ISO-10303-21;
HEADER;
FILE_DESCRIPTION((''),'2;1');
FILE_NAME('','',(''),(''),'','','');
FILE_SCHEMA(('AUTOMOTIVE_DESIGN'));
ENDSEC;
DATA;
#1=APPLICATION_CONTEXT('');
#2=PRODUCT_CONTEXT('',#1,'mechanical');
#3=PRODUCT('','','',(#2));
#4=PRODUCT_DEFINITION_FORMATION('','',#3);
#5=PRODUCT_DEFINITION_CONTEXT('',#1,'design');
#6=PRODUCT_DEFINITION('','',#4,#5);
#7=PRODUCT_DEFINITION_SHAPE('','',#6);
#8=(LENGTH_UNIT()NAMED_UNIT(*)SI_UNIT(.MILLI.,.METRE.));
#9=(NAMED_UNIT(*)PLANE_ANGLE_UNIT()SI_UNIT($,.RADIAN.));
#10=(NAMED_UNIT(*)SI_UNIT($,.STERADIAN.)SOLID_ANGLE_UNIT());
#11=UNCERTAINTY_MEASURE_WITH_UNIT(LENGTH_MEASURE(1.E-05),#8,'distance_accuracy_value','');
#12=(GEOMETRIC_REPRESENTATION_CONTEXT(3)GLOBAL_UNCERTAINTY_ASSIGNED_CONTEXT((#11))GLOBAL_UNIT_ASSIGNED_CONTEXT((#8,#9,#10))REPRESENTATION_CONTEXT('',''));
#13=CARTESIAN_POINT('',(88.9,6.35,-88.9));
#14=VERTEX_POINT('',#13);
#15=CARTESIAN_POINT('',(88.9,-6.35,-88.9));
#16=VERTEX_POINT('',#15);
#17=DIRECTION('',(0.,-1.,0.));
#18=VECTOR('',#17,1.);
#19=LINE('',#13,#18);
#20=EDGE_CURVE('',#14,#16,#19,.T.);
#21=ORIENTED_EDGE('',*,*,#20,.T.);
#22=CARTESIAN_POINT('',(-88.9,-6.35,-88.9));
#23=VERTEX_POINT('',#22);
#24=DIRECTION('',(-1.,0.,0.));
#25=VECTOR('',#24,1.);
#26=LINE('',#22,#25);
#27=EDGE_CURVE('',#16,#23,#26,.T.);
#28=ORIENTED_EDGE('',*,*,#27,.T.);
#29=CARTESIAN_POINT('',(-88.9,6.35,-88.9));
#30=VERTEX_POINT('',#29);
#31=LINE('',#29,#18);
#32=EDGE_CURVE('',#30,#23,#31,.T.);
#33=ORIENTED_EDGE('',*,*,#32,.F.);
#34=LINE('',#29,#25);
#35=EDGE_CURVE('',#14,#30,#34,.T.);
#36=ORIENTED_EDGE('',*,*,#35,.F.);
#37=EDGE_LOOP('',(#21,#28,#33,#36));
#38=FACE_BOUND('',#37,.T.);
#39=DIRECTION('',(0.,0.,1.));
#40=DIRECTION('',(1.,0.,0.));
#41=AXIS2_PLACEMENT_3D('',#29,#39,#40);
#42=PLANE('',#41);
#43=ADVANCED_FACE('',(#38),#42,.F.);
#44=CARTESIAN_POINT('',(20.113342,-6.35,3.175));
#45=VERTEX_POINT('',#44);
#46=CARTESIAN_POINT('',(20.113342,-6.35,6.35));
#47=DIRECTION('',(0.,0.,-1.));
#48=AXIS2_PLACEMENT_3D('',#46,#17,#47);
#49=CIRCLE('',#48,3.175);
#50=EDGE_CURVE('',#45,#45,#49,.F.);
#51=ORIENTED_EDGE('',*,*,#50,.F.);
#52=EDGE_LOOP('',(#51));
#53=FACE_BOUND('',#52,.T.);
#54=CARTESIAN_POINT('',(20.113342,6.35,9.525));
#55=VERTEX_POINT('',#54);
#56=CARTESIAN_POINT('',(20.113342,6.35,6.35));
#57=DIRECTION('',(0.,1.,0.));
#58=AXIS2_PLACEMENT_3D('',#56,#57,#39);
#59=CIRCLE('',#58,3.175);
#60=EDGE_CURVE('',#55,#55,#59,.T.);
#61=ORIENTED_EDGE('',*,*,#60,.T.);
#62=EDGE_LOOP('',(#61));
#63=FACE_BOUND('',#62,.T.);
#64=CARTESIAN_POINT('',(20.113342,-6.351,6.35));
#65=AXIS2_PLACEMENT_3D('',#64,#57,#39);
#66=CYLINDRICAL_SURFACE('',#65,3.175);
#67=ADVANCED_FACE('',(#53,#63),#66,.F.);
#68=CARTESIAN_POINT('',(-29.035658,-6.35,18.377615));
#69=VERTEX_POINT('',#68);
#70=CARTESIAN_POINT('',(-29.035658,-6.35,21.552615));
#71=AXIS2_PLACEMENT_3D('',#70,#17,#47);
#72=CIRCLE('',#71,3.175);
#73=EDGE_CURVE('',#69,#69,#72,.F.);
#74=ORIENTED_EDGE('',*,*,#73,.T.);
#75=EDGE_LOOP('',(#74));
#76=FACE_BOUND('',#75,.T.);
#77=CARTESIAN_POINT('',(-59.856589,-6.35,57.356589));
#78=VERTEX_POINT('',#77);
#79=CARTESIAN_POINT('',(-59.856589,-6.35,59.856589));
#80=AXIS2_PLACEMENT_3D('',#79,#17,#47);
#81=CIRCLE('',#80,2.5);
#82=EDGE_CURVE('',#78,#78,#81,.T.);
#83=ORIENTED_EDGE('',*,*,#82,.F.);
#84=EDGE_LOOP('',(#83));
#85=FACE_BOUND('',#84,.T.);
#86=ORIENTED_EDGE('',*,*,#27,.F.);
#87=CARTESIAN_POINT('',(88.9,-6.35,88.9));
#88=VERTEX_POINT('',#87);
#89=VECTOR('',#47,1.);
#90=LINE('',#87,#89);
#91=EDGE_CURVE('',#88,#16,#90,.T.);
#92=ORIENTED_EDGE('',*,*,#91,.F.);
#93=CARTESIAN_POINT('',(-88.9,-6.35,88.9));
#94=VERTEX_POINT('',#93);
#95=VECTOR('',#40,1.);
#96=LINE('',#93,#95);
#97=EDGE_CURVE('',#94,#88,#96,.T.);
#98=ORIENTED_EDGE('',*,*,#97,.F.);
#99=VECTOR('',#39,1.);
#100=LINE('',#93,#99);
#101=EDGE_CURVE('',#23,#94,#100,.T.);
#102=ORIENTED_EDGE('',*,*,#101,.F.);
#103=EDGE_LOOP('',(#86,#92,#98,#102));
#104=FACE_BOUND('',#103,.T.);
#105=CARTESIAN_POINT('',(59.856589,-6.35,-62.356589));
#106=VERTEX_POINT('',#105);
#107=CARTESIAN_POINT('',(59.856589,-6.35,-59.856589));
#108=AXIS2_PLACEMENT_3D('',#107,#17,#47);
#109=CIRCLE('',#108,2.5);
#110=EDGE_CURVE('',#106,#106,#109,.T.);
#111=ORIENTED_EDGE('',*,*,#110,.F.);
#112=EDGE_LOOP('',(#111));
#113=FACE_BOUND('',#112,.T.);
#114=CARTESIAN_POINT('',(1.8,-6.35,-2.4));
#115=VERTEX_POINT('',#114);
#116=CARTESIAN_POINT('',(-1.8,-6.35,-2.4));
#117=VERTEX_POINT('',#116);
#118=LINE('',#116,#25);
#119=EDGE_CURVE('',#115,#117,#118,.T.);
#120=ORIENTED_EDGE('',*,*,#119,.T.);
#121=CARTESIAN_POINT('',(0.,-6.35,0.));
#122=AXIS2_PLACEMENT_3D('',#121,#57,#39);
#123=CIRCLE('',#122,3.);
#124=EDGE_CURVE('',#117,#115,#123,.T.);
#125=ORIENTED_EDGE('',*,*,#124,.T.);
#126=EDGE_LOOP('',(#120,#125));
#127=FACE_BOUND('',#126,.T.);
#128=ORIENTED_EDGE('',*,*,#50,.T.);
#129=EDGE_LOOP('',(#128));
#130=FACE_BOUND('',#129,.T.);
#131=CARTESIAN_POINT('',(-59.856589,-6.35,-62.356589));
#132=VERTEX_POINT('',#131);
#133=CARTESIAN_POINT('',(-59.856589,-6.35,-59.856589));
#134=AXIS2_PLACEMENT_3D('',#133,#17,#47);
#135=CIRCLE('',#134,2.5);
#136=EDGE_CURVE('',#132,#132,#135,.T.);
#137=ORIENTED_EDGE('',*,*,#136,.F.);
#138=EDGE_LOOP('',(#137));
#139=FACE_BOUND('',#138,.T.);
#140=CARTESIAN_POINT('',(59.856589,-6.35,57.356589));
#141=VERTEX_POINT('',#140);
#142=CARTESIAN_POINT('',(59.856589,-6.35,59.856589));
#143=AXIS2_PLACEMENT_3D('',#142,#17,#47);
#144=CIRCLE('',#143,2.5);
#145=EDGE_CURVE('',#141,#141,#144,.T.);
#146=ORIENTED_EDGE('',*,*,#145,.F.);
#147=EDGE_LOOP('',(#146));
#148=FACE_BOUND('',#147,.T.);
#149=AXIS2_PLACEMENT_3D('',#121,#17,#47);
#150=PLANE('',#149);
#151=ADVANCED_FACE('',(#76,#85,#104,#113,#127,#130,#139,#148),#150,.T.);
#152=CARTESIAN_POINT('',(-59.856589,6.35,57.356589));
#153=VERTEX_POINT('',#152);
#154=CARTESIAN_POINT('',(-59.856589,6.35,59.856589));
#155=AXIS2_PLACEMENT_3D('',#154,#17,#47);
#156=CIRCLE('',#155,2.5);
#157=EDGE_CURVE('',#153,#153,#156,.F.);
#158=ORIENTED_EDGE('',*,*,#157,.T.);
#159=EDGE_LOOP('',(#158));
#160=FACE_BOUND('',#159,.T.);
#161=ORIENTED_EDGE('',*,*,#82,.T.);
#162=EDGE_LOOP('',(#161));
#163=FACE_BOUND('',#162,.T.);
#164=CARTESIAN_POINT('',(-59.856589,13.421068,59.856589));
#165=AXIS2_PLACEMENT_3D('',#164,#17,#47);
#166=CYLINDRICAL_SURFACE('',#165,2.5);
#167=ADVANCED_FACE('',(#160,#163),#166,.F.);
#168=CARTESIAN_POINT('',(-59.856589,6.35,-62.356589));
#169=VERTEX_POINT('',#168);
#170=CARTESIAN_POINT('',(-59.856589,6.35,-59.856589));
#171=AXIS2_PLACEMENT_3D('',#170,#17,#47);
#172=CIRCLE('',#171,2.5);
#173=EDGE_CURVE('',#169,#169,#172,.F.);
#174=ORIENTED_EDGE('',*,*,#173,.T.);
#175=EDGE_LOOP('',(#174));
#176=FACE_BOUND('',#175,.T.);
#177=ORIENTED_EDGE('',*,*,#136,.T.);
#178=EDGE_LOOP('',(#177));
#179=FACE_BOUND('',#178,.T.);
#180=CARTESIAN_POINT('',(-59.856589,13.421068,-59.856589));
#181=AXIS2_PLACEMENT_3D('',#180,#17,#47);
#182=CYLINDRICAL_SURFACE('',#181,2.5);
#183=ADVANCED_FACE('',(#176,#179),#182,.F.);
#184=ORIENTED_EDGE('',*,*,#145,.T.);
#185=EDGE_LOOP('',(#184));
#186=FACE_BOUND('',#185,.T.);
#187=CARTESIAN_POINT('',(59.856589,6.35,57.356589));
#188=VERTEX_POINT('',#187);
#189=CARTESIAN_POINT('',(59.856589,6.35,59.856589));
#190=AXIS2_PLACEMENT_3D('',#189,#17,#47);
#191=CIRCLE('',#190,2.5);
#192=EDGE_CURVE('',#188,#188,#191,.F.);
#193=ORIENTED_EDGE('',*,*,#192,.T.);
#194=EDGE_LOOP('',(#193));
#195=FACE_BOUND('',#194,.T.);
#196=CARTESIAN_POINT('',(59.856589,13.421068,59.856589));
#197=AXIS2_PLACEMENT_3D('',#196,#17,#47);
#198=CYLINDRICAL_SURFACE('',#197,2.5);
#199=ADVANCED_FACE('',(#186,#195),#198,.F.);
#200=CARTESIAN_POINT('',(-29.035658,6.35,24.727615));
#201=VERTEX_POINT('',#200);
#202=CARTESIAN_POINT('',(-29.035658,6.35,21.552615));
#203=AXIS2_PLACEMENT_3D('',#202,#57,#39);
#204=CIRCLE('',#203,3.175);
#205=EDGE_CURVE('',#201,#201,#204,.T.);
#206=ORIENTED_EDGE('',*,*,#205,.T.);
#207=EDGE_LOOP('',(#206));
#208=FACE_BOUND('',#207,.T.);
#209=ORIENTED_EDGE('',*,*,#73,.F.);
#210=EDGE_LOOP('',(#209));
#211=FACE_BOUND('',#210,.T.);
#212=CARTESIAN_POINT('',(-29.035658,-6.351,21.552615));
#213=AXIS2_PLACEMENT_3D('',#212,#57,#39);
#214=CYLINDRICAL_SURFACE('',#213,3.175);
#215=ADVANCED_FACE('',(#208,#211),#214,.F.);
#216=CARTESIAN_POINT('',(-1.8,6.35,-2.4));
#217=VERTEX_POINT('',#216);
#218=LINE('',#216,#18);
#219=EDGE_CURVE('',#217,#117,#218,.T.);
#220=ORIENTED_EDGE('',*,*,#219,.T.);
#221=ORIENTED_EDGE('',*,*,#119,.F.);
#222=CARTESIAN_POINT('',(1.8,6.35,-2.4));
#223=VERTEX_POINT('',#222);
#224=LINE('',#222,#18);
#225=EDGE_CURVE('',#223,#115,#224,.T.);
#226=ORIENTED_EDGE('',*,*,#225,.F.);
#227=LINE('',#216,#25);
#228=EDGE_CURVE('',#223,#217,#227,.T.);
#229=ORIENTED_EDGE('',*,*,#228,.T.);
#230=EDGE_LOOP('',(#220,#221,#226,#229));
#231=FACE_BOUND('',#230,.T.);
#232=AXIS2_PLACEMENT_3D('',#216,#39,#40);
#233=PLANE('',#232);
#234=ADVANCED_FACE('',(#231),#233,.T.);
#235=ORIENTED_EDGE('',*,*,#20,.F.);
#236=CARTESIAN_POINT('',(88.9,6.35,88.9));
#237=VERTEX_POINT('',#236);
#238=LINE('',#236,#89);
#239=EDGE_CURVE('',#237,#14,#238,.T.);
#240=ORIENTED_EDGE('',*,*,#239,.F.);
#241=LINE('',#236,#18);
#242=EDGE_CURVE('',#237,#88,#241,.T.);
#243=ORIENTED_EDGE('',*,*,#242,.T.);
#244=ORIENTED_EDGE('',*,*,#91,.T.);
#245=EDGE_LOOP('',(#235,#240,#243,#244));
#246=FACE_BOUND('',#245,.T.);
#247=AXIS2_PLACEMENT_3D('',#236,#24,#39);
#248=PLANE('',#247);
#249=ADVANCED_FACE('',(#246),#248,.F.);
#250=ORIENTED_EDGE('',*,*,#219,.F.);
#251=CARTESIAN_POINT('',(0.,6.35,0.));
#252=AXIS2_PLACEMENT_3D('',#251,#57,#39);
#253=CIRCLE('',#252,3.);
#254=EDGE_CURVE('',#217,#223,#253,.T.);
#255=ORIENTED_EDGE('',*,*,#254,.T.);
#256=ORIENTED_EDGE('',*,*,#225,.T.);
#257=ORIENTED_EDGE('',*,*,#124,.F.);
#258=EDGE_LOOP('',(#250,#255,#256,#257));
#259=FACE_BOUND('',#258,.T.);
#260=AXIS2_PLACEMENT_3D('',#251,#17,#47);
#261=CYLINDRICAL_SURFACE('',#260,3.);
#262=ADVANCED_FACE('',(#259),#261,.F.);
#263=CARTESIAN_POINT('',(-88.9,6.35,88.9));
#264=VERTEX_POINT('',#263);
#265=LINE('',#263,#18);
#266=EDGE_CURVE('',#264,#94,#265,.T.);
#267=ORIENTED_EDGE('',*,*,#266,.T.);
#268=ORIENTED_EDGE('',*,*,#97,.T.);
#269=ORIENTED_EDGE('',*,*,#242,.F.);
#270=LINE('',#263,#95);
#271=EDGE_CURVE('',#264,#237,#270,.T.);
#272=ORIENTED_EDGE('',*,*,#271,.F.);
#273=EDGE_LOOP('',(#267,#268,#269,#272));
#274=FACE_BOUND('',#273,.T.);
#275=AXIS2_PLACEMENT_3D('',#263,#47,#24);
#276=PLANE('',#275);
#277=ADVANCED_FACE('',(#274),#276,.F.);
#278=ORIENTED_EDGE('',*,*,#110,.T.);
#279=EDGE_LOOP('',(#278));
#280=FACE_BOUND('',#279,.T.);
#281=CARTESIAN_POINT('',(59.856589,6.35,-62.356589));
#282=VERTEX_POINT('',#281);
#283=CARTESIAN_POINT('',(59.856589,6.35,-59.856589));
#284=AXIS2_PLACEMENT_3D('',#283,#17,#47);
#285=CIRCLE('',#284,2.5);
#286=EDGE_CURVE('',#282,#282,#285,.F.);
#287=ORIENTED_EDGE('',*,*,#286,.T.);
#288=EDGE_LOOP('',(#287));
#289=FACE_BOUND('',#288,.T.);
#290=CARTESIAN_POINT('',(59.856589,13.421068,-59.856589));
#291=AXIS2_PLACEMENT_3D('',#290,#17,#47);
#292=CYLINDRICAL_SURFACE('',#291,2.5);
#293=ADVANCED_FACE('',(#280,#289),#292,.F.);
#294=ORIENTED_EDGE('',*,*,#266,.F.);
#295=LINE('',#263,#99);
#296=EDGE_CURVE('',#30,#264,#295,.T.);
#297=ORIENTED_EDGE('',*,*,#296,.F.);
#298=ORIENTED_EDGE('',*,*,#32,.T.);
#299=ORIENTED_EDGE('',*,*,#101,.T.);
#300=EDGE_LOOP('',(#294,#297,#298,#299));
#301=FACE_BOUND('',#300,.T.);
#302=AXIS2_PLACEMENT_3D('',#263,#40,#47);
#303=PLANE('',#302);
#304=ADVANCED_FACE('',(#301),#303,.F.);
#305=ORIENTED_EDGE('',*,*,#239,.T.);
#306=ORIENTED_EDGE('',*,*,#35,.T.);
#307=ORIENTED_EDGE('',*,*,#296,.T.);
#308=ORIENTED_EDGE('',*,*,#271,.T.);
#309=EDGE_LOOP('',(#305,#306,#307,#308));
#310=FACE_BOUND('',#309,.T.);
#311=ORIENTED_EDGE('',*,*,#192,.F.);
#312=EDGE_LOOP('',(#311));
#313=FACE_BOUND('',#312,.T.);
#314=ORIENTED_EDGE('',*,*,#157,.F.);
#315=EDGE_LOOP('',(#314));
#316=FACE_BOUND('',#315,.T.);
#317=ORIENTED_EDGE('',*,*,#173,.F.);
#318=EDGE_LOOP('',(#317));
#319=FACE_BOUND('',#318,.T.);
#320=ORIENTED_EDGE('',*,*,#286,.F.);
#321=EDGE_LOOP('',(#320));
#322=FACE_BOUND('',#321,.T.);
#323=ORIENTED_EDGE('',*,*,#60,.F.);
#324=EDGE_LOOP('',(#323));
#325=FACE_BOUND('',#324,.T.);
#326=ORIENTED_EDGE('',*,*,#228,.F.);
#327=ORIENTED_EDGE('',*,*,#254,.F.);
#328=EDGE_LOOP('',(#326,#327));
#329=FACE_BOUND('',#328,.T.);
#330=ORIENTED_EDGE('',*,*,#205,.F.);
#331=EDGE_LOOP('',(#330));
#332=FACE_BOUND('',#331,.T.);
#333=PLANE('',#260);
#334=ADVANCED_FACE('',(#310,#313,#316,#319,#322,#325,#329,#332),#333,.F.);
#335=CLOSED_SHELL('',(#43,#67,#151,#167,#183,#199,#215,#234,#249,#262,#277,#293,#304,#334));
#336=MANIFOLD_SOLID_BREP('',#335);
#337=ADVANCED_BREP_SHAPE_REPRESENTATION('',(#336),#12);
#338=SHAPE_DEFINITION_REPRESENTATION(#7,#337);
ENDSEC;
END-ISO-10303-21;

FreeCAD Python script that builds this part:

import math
import FreeCAD as App
import Part
import Sketcher

V = App.Vector
Q = App.Units.Quantity

doc = App.newDocument("Part")
body = doc.addObject("PartDesign::Body", "Body")

sketch1 = doc.addObject("Sketcher::SketchObject", "Sketch")
body.addObject(sketch1)
sketch1.AttachmentSupport = (doc.XZ_Plane, [""])
sketch1.MapMode = "FlatFace"
sketch1.addGeometry(Part.LineSegment(V(-88.9, -88.9, 0), V(-88.9, 88.9, 0)), False)
sketch1.addGeometry(Part.LineSegment(V(-88.9, 88.9, 0), V(88.9, 88.9, 0)), False)
sketch1.addGeometry(Part.LineSegment(V(88.9, 88.9, 0), V(88.9, -88.9, 0)), False)
sketch1.addGeometry(Part.LineSegment(V(88.9, -88.9, 0), V(-88.9, -88.9, 0)), False)
sketch1.addGeometry(Part.ArcOfCircle(Part.Circle(V(0, 0, 0), V(0, 0, 1), 3), math.radians(-53), math.radians(233)), False)
sketch1.addGeometry(Part.LineSegment(V(-1.8, -2.4, 0), V(1.8, -2.4, 0)), False)
sketch1.addConstraint(Sketcher.Constraint("Coincident", 0, 2, 1, 1))
sketch1.addConstraint(Sketcher.Constraint("Coincident", 1, 2, 2, 1))
sketch1.addConstraint(Sketcher.Constraint("Coincident", 2, 2, 3, 1))
sketch1.addConstraint(Sketcher.Constraint("Coincident", 3, 2, 0, 1))
sketch1.addConstraint(Sketcher.Constraint("Coincident", 4, 1, 5, 2))
sketch1.addConstraint(Sketcher.Constraint("Coincident", 5, 1, 4, 2))
sketch1.addConstraint(Sketcher.Constraint("Vertical", 0))
sketch1.addConstraint(Sketcher.Constraint("Horizontal", 1))
sketch1.addConstraint(Sketcher.Constraint("Vertical", 2))
sketch1.addConstraint(Sketcher.Constraint("Horizontal", 3))
sketch1.addConstraint(Sketcher.Constraint("Horizontal", 5))
sketch1.addConstraint(Sketcher.Constraint("Coincident", 4, 3, -1, 1))
sketch1.addConstraint(Sketcher.Constraint("Symmetric", 0, 2, 2, 2, -1, 1))
sketch1.addConstraint(Sketcher.Constraint("Equal", 3, 0))
sketch1.addConstraint(Sketcher.Constraint("Radius", 4, Q("3 mm")))
sketch1.addConstraint(Sketcher.Constraint("DistanceX", 1, 1, 1, 2, Q("177.8 mm")))
sketch1.addConstraint(Sketcher.Constraint("DistanceX", 5, 1, 5, 2, Q("3.6 mm")))
pad1 = doc.addObject("PartDesign::Pad", "Pad")
body.addObject(pad1)
pad1.Profile = sketch1
pad1.Length = 12.7
pad1.Midplane = True

sketch2 = doc.addObject("Sketcher::SketchObject", "Sketch001")
body.addObject(sketch2)
sketch2.AttachmentSupport = (doc.XZ_Plane, [""])
sketch2.MapMode = "FlatFace"
sketch2.AttachmentOffset = App.Placement(V(0, 0, 6.35), App.Rotation())
sketch2.addGeometry(Part.Circle(V(-59.9, -59.9, 0), V(0, 0, 1), 2.5), False)
sketch2.addGeometry(Part.Circle(V(59.9, -59.9, 0), V(0, 0, 1), 2.5), False)
sketch2.addGeometry(Part.Circle(V(59.9, 59.9, 0), V(0, 0, 1), 2.5), False)
sketch2.addGeometry(Part.Circle(V(-59.9, 59.9, 0), V(0, 0, 1), 2.5), False)
sketch2.addConstraint(Sketcher.Constraint("Equal", 0, 1))
sketch2.addConstraint(Sketcher.Constraint("Equal", 1, 2))
sketch2.addConstraint(Sketcher.Constraint("Equal", 2, 3))
sketch2.addConstraint(Sketcher.Constraint("Symmetric", 0, 3, 2, 3, -1, 1))
sketch2.addConstraint(Sketcher.Constraint("Symmetric", 1, 3, 3, 3, -1, 1))
sketch2.addConstraint(Sketcher.Constraint("Symmetric", 0, 3, 1, 3, -2))
sketch2.addConstraint(Sketcher.Constraint("Diameter", 0, Q("5 mm")))
sketch2.addConstraint(Sketcher.Constraint("DistanceX", 0, 3, -1, 1, Q("59.856589 mm")))
sketch2.addConstraint(Sketcher.Constraint("DistanceY", 0, 3, -1, 1, Q("59.856589 mm")))
pocket1 = doc.addObject("PartDesign::Pocket", "Pocket")
body.addObject(pocket1)
pocket1.Profile = sketch2
pocket1.Length = 12.7

sketch3 = doc.addObject("Sketcher::SketchObject", "Sketch002")
body.addObject(sketch3)
sketch3.AttachmentSupport = (doc.XZ_Plane, [""])
sketch3.MapMode = "FlatFace"
sketch3.AttachmentOffset = App.Placement(V(0, 0, -6.35), App.Rotation())
sketch3.addGeometry(Part.Circle(V(20.1, 6.3, 0), V(0, 0, 1), 3.2), False)
sketch3.addConstraint(Sketcher.Constraint("Diameter", 0, Q("6.35 mm")))
sketch3.addConstraint(Sketcher.Constraint("DistanceY", -1, 1, 0, 3, Q("6.35 mm")))
sketch3.addConstraint(Sketcher.Constraint("DistanceX", -1, 1, 0, 3, Q("20.113342 mm")))
pocket2 = doc.addObject("PartDesign::Pocket", "Pocket001")
body.addObject(pocket2)
pocket2.Profile = sketch3
pocket2.Type = "UpToFirst"
pocket2.Reversed = True

sketch4 = doc.addObject("Sketcher::SketchObject", "Sketch003")
body.addObject(sketch4)
sketch4.AttachmentSupport = (doc.XZ_Plane, [""])
sketch4.MapMode = "FlatFace"
sketch4.AttachmentOffset = App.Placement(V(0, 0, -6.35), App.Rotation())
sketch4.addGeometry(Part.Circle(V(-29, 21.6, 0), V(0, 0, 1), 3.2), False)
sketch4.addConstraint(Sketcher.Constraint("Diameter", 0, Q("6.35 mm")))
sketch4.addConstraint(Sketcher.Constraint("DistanceX", 0, 3, -1, 1, Q("29.035658 mm")))
sketch4.addConstraint(Sketcher.Constraint("DistanceY", -1, 1, 0, 3, Q("21.552615 mm")))
pocket3 = doc.addObject("PartDesign::Pocket", "Pocket002")
body.addObject(pocket3)
pocket3.Profile = sketch4
pocket3.Type = "UpToFirst"
pocket3.Reversed = True

doc.recompute()
